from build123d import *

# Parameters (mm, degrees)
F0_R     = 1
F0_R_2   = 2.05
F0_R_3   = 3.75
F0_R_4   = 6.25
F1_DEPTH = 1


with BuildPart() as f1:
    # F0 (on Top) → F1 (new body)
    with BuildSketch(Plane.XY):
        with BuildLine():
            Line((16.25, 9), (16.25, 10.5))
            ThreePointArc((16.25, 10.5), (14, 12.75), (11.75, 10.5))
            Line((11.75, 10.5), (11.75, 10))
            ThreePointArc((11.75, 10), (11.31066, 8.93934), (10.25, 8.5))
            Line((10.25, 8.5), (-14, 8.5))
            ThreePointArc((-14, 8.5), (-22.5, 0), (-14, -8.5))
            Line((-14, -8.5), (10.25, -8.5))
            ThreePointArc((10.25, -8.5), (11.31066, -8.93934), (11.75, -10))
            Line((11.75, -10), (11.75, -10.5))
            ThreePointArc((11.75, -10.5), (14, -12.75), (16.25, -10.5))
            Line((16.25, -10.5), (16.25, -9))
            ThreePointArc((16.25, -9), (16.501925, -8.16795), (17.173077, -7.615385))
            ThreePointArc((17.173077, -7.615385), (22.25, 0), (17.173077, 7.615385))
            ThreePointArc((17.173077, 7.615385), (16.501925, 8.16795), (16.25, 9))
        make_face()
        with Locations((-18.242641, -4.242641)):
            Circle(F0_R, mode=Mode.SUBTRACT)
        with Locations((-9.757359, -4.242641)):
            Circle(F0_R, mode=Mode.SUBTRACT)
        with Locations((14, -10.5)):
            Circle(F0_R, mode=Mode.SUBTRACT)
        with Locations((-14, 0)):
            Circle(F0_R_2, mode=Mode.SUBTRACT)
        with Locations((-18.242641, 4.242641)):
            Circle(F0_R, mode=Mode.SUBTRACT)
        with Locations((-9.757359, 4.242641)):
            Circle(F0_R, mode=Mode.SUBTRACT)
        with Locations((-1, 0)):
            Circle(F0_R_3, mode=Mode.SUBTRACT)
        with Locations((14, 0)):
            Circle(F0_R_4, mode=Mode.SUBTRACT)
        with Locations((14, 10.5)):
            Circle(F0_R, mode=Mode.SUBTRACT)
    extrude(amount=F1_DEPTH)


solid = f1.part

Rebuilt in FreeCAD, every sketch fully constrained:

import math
import FreeCAD as App
import Part
import Sketcher
from FreeCAD import Vector

doc = App.newDocument("Part")
body = doc.addObject("PartDesign::Body", "Body")

# Sketch on XY plane
sketch1 = body.newObject("Sketcher::SketchObject", "Sketch")
sketch1.AttachmentSupport = (doc.getObject("XY_Plane"), [""])
sketch1.MapMode = "FlatFace"
sketch1.addGeometry([
    Part.LineSegment(Vector(16.2, 9, 0), Vector(16.2, 10.5, 0)),  # 0
    Part.ArcOfCircle(Part.Circle(Vector(14, 10.5, 0), Vector(0, 0, 1), 2.2), math.radians(0), math.radians(180)),  # 1
    Part.LineSegment(Vector(11.8, 10.5, 0), Vector(11.8, 10, 0)),  # 2
    Part.ArcOfCircle(Part.Circle(Vector(10.2, 10, 0), Vector(0, 0, 1), 1.5), math.radians(-90), math.radians(0)),  # 3
    Part.LineSegment(Vector(10.2, 8.5, 0), Vector(-14, 8.5, 0)),  # 4
    Part.ArcOfCircle(Part.Circle(Vector(-14, 0, 0), Vector(0, 0, 1), 8.5), math.radians(90), math.radians(270)),  # 5
    Part.LineSegment(Vector(-14, -8.5, 0), Vector(10.2, -8.5, 0)),  # 6
    Part.ArcOfCircle(Part.Circle(Vector(10.2, -10, 0), Vector(0, 0, 1), 1.5), math.radians(0), math.radians(90)),  # 7
    Part.LineSegment(Vector(11.8, -10, 0), Vector(11.8, -10.5, 0)),  # 8
    Part.ArcOfCircle(Part.Circle(Vector(14, -10.5, 0), Vector(0, 0, 1), 2.2), math.radians(180), math.radians(360)),  # 9
    Part.LineSegment(Vector(16.2, -10.5, 0), Vector(16.2, -9, 0)),  # 10
    Part.ArcOfCircle(Part.Circle(Vector(17.8, -9, 0), Vector(0, 0, 1), 1.5), math.radians(113), math.radians(180)),  # 11
    Part.ArcOfCircle(Part.Circle(Vector(14, 0, 0), Vector(0, 0, 1), 8.3), math.radians(-67), math.radians(67)),  # 12
    Part.ArcOfCircle(Part.Circle(Vector(17.8, 9, 0), Vector(0, 0, 1), 1.5), math.radians(-180), math.radians(-113)),  # 13
    Part.Circle(Vector(-18.2, -4.2, 0), Vector(0, 0, 1), 1),  # 14
    Part.Circle(Vector(-9.8, -4.2, 0), Vector(0, 0, 1), 1),  # 15
    Part.Circle(Vector(14, -10.5, 0), Vector(0, 0, 1), 1),  # 16
    Part.Circle(Vector(-14, 0, 0), Vector(0, 0, 1), 2),  # 17
    Part.Circle(Vector(-18.2, 4.2, 0), Vector(0, 0, 1), 1),  # 18
    Part.Circle(Vector(-9.8, 4.2, 0), Vector(0, 0, 1), 1),  # 19
    Part.Circle(Vector(-1, 0, 0), Vector(0, 0, 1), 3.8),  # 20
    Part.Circle(Vector(14, 0, 0), Vector(0, 0, 1), 6.2),  # 21
    Part.Circle(Vector(14, 10.5, 0), Vector(0, 0, 1), 1),  # 22
], False)
sketch1.addConstraint([
    Sketcher.Constraint("Tangent", 0, 2, 1, 1),
    Sketcher.Constraint("Tangent", 1, 2, 2, 1),
    Sketcher.Constraint("Tangent", 2, 2, 3, 2),
    Sketcher.Constraint("Tangent", 3, 1, 4, 1),
    Sketcher.Constraint("Tangent", 4, 2, 5, 1),
    Sketcher.Constraint("Tangent", 5, 2, 6, 1),
    Sketcher.Constraint("Tangent", 6, 2, 7, 2),
    Sketcher.Constraint("Tangent", 7, 1, 8, 1),
    Sketcher.Constraint("Tangent", 8, 2, 9, 1),
    Sketcher.Constraint("Tangent", 9, 2, 10, 1),
    Sketcher.Constraint("Tangent", 10, 2, 11, 2),
    Sketcher.Constraint("Tangent", 11, 1, 12, 1),
    Sketcher.Constraint("Tangent", 12, 2, 13, 2),
    Sketcher.Constraint("Tangent", 13, 1, 0, 1),
    Sketcher.Constraint("Vertical", 0),
    Sketcher.Constraint("Vertical", 2),
    Sketcher.Constraint("Horizontal", 4),
    Sketcher.Constraint("Horizontal", 6),
    Sketcher.Constraint("Vertical", 8),
    Sketcher.Constraint("Vertical", 10),
    Sketcher.Constraint("Coincident", 16, 3, 9, 3),
    Sketcher.Constraint("Coincident", 17, 3, 5, 3),
    Sketcher.Constraint("Coincident", 21, 3, 12, 3),
    Sketcher.Constraint("Coincident", 22, 3, 1, 3),
    Sketcher.Constraint("Equal", 3, 7),
    Sketcher.Constraint("Equal", 1, 9),
    Sketcher.Constraint("Equal", 7, 11),
    Sketcher.Constraint("Equal", 11, 13),
    Sketcher.Constraint("Equal", 14, 15),
    Sketcher.Constraint("Equal", 15, 16),
    Sketcher.Constraint("Equal", 16, 18),
    Sketcher.Constraint("Equal", 18, 19),
    Sketcher.Constraint("Equal", 19, 22),
    Sketcher.Constraint("Symmetric", 5, 3, 12, 3, -1, 1),
    Sketcher.Constraint("Symmetric", 3, 3, 7, 3, -1),
    Sketcher.Constraint("Symmetric", 14, 3, 18, 3, -1),
    Sketcher.Constraint("Symmetric", 15, 3, 19, 3, -1),
    Sketcher.Constraint("PointOnObject", 20, 3, -1),
    Sketcher.Constraint("Horizontal", 14, 3, 15, 3),
    Sketcher.Constraint("Vertical", 9, 3, 12, 3),
    Sketcher.Constraint("Equal", 2, 8),
    Sketcher.Constraint("Diameter", 14, 2.0),
    Sketcher.Constraint("Diameter", 17, 4.1),
    Sketcher.Constraint("Diameter", 20, 7.5),
    Sketcher.Constraint("Diameter", 21, 12.5),
    Sketcher.Constraint("Radius", 3, 1.500001),
    Sketcher.Constraint("Radius", 5, 8.5),
    Sketcher.Constraint("Radius", 1, 2.25),
    Sketcher.Constraint("Radius", 12, 8.250001),
    Sketcher.Constraint("DistanceY", 0, 1, 0, 2, 1.5),
    Sketcher.Constraint("DistanceX", -1, 1, 1, 3, 14.0),
    Sketcher.Constraint("DistanceX", 20, 3, -1, 1, 1.0),
    Sketcher.Constraint("DistanceX", 14, 3, -1, 1, 18.242641),
    Sketcher.Constraint("DistanceY", 14, 3, -1, 1, 4.242641),
    Sketcher.Constraint("DistanceX", 15, 3, -1, 1, 9.757359),
])
pad1 = body.newObject("PartDesign::Pad", "Pad")
pad1.Profile = sketch1
pad1.Length = 1

doc.recompute()
